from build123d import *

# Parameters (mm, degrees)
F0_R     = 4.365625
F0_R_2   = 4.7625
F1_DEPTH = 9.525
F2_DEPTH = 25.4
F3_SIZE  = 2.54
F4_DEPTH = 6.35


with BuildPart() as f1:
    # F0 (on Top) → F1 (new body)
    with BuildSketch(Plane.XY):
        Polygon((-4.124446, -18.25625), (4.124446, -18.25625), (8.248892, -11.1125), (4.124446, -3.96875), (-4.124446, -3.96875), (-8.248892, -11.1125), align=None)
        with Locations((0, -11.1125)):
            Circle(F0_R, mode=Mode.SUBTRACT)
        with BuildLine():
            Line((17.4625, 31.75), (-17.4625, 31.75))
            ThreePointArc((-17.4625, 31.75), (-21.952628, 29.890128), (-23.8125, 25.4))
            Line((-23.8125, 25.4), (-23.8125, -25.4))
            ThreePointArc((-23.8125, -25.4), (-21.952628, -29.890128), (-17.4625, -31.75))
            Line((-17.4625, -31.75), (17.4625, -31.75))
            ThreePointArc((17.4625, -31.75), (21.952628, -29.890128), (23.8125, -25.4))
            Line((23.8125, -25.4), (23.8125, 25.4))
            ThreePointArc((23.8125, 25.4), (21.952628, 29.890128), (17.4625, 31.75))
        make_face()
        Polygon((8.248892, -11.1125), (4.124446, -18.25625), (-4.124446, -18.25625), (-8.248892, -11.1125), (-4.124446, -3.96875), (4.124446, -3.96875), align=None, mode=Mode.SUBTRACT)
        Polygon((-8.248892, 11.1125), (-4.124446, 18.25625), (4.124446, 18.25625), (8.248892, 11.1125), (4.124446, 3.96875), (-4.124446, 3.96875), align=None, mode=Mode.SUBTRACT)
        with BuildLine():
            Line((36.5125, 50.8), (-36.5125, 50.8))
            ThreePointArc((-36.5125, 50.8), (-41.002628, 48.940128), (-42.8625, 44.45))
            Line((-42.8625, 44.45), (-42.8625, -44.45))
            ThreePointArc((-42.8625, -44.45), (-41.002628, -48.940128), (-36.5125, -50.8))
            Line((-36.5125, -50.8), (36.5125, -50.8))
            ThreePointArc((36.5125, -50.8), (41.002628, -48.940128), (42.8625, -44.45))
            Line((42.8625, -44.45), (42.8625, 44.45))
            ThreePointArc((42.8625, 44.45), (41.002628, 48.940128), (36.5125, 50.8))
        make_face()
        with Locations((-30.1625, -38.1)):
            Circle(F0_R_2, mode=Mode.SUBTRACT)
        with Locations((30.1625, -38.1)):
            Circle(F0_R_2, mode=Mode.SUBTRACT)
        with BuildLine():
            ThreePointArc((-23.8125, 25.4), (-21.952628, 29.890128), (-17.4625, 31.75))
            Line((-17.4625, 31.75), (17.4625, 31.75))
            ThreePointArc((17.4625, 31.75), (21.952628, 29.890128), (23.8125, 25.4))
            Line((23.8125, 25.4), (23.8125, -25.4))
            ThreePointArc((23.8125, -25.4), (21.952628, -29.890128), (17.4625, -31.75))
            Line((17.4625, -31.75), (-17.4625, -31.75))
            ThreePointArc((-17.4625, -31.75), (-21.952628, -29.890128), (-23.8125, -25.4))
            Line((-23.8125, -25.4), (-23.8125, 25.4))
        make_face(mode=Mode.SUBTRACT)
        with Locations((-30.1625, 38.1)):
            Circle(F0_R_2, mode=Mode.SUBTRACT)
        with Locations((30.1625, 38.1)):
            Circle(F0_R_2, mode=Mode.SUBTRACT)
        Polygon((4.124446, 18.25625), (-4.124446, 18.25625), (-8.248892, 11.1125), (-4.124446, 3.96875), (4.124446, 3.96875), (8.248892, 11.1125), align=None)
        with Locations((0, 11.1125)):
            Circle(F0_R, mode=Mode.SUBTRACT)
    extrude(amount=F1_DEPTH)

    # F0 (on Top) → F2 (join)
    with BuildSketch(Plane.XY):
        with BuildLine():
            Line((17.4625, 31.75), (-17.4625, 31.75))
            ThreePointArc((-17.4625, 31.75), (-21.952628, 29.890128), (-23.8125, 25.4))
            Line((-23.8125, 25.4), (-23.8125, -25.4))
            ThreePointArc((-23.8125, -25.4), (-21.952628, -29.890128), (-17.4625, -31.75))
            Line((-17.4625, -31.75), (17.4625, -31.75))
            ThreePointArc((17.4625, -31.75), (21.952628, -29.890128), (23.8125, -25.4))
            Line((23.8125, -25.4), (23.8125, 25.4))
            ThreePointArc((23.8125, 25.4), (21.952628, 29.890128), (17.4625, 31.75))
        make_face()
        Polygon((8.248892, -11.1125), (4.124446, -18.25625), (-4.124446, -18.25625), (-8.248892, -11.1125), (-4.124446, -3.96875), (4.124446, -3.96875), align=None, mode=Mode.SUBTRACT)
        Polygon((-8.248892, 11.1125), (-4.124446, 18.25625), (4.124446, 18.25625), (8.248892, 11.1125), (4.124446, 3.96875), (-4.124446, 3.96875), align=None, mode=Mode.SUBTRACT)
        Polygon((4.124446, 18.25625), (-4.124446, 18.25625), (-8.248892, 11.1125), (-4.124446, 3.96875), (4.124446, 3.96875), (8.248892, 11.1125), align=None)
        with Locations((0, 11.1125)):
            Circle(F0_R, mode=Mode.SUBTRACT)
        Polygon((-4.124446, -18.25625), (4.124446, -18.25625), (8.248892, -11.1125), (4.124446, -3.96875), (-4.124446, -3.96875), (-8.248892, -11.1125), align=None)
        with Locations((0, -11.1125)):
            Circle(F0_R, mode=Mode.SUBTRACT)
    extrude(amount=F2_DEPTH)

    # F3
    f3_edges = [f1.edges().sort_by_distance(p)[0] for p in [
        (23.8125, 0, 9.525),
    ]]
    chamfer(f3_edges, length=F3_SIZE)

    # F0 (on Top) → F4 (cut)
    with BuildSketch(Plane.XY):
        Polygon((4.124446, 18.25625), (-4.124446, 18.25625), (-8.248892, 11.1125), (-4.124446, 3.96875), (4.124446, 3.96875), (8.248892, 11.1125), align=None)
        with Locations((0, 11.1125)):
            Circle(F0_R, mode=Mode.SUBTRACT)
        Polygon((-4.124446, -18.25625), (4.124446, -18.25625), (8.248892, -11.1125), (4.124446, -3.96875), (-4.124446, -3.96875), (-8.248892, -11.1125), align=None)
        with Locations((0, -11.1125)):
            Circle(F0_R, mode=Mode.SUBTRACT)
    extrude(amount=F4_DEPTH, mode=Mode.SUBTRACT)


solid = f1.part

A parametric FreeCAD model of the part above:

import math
import FreeCAD as App
import Part
import Sketcher
from FreeCAD import Vector
Q = App.Units.Quantity


def edges_at(feature, points):
    """Names of the edges that pass closest to the given points."""
    edges = feature.Shape.Edges
    near = lambda p: min(range(len(edges)), key=lambda i: edges[i].distToShape(Part.Vertex(*p))[0])
    return sorted({f"Edge{near(p) + 1}" for p in points})

doc = App.newDocument("Part")
body = doc.addObject("PartDesign::Body", "Body")
body.AllowCompound = True

sketch1 = body.newObject("Sketcher::SketchObject", "Sketch")
sketch1.AttachmentSupport = (doc.getObject("XY_Plane"), [""])
sketch1.MapMode = "FlatFace"
sketch1.addGeometry(Part.LineSegment(Vector(36.5125, 50.8, 0), Vector(-36.5125, 50.8, 0)), False)
sketch1.addGeometry(Part.ArcOfCircle(Part.Circle(Vector(-36.5125, 44.45, 0), Vector(0, 0, 1), 6.35), math.radians(90.000002), math.radians(179.999998)), False)
sketch1.addGeometry(Part.LineSegment(Vector(-42.8625, 44.45, 0), Vector(-42.8625, -44.45, 0)), False)
sketch1.addGeometry(Part.ArcOfCircle(Part.Circle(Vector(-36.5125, -44.45, 0), Vector(0, 0, 1), 6.35), math.radians(-179.999998), math.radians(-90.000002)), False)
sketch1.addGeometry(Part.LineSegment(Vector(-36.5125, -50.8, 0), Vector(36.5125, -50.8, 0)), False)
sketch1.addGeometry(Part.ArcOfCircle(Part.Circle(Vector(36.5125, -44.45, 0), Vector(0, 0, 1), 6.35), math.radians(-89.999998), math.radians(-0.000002)), False)
sketch1.addGeometry(Part.LineSegment(Vector(42.8625, -44.45, 0), Vector(42.8625, 44.45, 0)), False)
sketch1.addGeometry(Part.ArcOfCircle(Part.Circle(Vector(36.5125, 44.45, 0), Vector(0, 0, 1), 6.35), math.radians(0.000002), math.radians(89.999998)), False)
sketch1.addGeometry(Part.Circle(Vector(-30.1625, -38.1, 0), Vector(0, 0, 1), 4.7625), False)
sketch1.addGeometry(Part.Circle(Vector(30.1625, -38.1, 0), Vector(0, 0, 1), 4.7625), False)
sketch1.addGeometry(Part.Circle(Vector(-30.1625, 38.1, 0), Vector(0, 0, 1), 4.7625), False)
sketch1.addGeometry(Part.LineSegment(Vector(-23.8125, -25.4, 0), Vector(-23.8125, 25.4, 0)), False)
sketch1.addGeometry(Part.ArcOfCircle(Part.Circle(Vector(-17.4625, 25.4, 0), Vector(0, 0, 1), 6.35), math.radians(90.000002), math.radians(179.999998)), False)
sketch1.addGeometry(Part.LineSegment(Vector(-17.4625, 31.75, 0), Vector(17.4625, 31.75, 0)), False)
sketch1.addGeometry(Part.ArcOfCircle(Part.Circle(Vector(17.4625, 25.4, 0), Vector(0, 0, 1), 6.35), math.radians(0.000002), math.radians(89.999998)), False)
sketch1.addGeometry(Part.LineSegment(Vector(23.8125, 25.4, 0), Vector(23.8125, -25.4, 0)), False)
sketch1.addGeometry(Part.ArcOfCircle(Part.Circle(Vector(17.4625, -25.4, 0), Vector(0, 0, 1), 6.35), math.radians(-89.999998), math.radians(-0.000002)), False)
sketch1.addGeometry(Part.LineSegment(Vector(17.4625, -31.75, 0), Vector(-17.4625, -31.75, 0)), False)
sketch1.addGeometry(Part.ArcOfCircle(Part.Circle(Vector(-17.4625, -25.4, 0), Vector(0, 0, 1), 6.35), math.radians(-179.999998), math.radians(-90.000002)), False)
sketch1.addGeometry(Part.Circle(Vector(30.1625, 38.1, 0), Vector(0, 0, 1), 4.7625), False)
sketch1.addGeometry(Part.LineSegment(Vector(4.124446, 18.25625, 0), Vector(-4.124446, 18.25625, 0)), False)
sketch1.addGeometry(Part.LineSegment(Vector(-4.124446, 18.25625, 0), Vector(-8.248892, 11.1125, 0)), False)
sketch1.addGeometry(Part.LineSegment(Vector(-8.248892, 11.1125, 0), Vector(-4.124446, 3.96875, 0)), False)
sketch1.addGeometry(Part.LineSegment(Vector(-4.124446, 3.96875, 0), Vector(4.124446, 3.96875, 0)), False)
sketch1.addGeometry(Part.LineSegment(Vector(4.124446, 3.96875, 0), Vector(8.248892, 11.1125, 0)), False)
sketch1.addGeometry(Part.LineSegment(Vector(8.248892, 11.1125, 0), Vector(4.124446, 18.25625, 0)), False)
sketch1.addGeometry(Part.Circle(Vector(0, 11.1125, 0), Vector(0, 0, 1), 4.365625), False)
sketch1.addConstraint(Sketcher.Constraint("Tangent", 0, 2, 1, 1))
sketch1.addConstraint(Sketcher.Constraint("Tangent", 1, 2, 2, 1))
sketch1.addConstraint(Sketcher.Constraint("Tangent", 2, 2, 3, 1))
sketch1.addConstraint(Sketcher.Constraint("Tangent", 3, 2, 4, 1))
sketch1.addConstraint(Sketcher.Constraint("Tangent", 4, 2, 5, 1))
sketch1.addConstraint(Sketcher.Constraint("Tangent", 5, 2, 6, 1))
sketch1.addConstraint(Sketcher.Constraint("Tangent", 6, 2, 7, 1))
sketch1.addConstraint(Sketcher.Constraint("Tangent", 7, 2, 0, 1))
sketch1.addConstraint(Sketcher.Constraint("Tangent", 11, 2, 12, 2))
sketch1.addConstraint(Sketcher.Constraint("Tangent", 12, 1, 13, 1))
sketch1.addConstraint(Sketcher.Constraint("Tangent", 13, 2, 14, 2))
sketch1.addConstraint(Sketcher.Constraint("Tangent", 14, 1, 15, 1))
sketch1.addConstraint(Sketcher.Constraint("Tangent", 15, 2, 16, 2))
sketch1.addConstraint(Sketcher.Constraint("Tangent", 16, 1, 17, 1))
sketch1.addConstraint(Sketcher.Constraint("Tangent", 17, 2, 18, 2))
sketch1.addConstraint(Sketcher.Constraint("Tangent", 18, 1, 11, 1))
sketch1.addConstraint(Sketcher.Constraint("Coincident", 20, 2, 21, 1))
sketch1.addConstraint(Sketcher.Constraint("Coincident", 21, 2, 22, 1))
sketch1.addConstraint(Sketcher.Constraint("Coincident", 22, 2, 23, 1))
sketch1.addConstraint(Sketcher.Constraint("Coincident", 23, 2, 24, 1))
sketch1.addConstraint(Sketcher.Constraint("Coincident", 24, 2, 25, 1))
sketch1.addConstraint(Sketcher.Constraint("Coincident", 25, 2, 20, 1))
sketch1.addConstraint(Sketcher.Constraint("Horizontal", 0))
sketch1.addConstraint(Sketcher.Constraint("Vertical", 2))
sketch1.addConstraint(Sketcher.Constraint("Horizontal", 4))
sketch1.addConstraint(Sketcher.Constraint("Vertical", 6))
sketch1.addConstraint(Sketcher.Constraint("Vertical", 11))
sketch1.addConstraint(Sketcher.Constraint("Horizontal", 13))
sketch1.addConstraint(Sketcher.Constraint("Vertical", 15))
sketch1.addConstraint(Sketcher.Constraint("Horizontal", 17))
sketch1.addConstraint(Sketcher.Constraint("Horizontal", 20))
sketch1.addConstraint(Sketcher.Constraint("Horizontal", 23))
sketch1.addConstraint(Sketcher.Constraint("Equal", 1, 3))
sketch1.addConstraint(Sketcher.Constraint("Equal", 3, 5))
sketch1.addConstraint(Sketcher.Constraint("Equal", 5, 7))
sketch1.addConstraint(Sketcher.Constraint("Equal", 8, 9))
sketch1.addConstraint(Sketcher.Constraint("Equal", 9, 10))
sketch1.addConstraint(Sketcher.Constraint("Equal", 7, 12))
sketch1.addConstraint(Sketcher.Constraint("Equal", 12, 14))
sketch1.addConstraint(Sketcher.Constraint("Equal", 14, 16))
sketch1.addConstraint(Sketcher.Constraint("Equal", 16, 18))
sketch1.addConstraint(Sketcher.Constraint("Equal", 10, 19))
sketch1.addConstraint(Sketcher.Constraint("Symmetric", 1, 3, 5, 3, -1, 1))
sketch1.addConstraint(Sketcher.Constraint("Symmetric", 9, 3, 10, 3, -1, 1))
sketch1.addConstraint(Sketcher.Constraint("Symmetric", 12, 3, 16, 3, -1, 1))
sketch1.addConstraint(Sketcher.Constraint("Symmetric", 8, 3, 19, 3, -1, 1))
sketch1.addConstraint(Sketcher.Constraint("Symmetric", 8, 3, 9, 3, -2))
sketch1.addConstraint(Sketcher.Constraint("Symmetric", 21, 2, 24, 2, -2))
sketch1.addConstraint(Sketcher.Constraint("PointOnObject", 26, 3, -2))
sketch1.addConstraint(Sketcher.Constraint("Parallel", 21, 24))
sketch1.addConstraint(Sketcher.Constraint("Parallel", 22, 25))
sketch1.addConstraint(Sketcher.Constraint("Horizontal", 26, 3, 21, 2))
sketch1.addConstraint(Sketcher.Constraint("Vertical", 20, 2, 22, 2))
sketch1.addConstraint(Sketcher.Constraint("Vertical", 23, 2, 25, 2))
sketch1.addConstraint(Sketcher.Constraint("DistanceY", 11, 1, 11, 2, Q("2 in")))
sketch1.addConstraint(Sketcher.Constraint("Radius", 1, Q("0.25 in")))
sketch1.addConstraint(Sketcher.Constraint("Diameter", 8, Q("0.375 in")))
sketch1.addConstraint(Sketcher.Constraint("Diameter", 26, Q("0.34375 in")))
sketch1.addConstraint(Sketcher.Constraint("DistanceY", 2, 2, 2, 1, Q("3.5 in")))
sketch1.addConstraint(Sketcher.Constraint("Angle", 21, Q("-120 deg")))
sketch1.addConstraint(Sketcher.Constraint("DistanceY", 8, 3, 10, 3, Q("3 in")))
sketch1.addConstraint(Sketcher.Constraint("DistanceX", 1, 2, 12, 3, Q("1 in")))
sketch1.addConstraint(Sketcher.Constraint("DistanceX", 10, 3, 12, 3, Q("0.5 in")))
sketch1.addConstraint(Sketcher.Constraint("DistanceX", 0, 2, 0, 1, Q("2.875 in")))
sketch1.addConstraint(Sketcher.Constraint("DistanceY", -1, 1, 26, 3, Q("0.4375 in")))
sketch1.addConstraint(Sketcher.Constraint("DistanceY", -1, 1, 20, 2, Q("0.71875 in")))
sketch1.addConstraint(Sketcher.Constraint("DistanceX", 20, 2, 20, 1, Q("8.248892 mm")))
pad1 = body.newObject("PartDesign::Pad", "Pad")
pad1.Profile = sketch1
pad1.Length = Q("0.375 in")

sketch2 = body.newObject("Sketcher::SketchObject", "Sketch001")
sketch2.AttachmentSupport = (doc.getObject("XY_Plane"), [""])
sketch2.MapMode = "FlatFace"
sketch2.addGeometry(Part.LineSegment(Vector(17.4625, 31.75, 0), Vector(-17.4625, 31.75, 0)), False)
sketch2.addGeometry(Part.ArcOfCircle(Part.Circle(Vector(-17.4625, 25.4, 0), Vector(0, 0, 1), 6.35), math.radians(90.000002), math.radians(179.999998)), False)
sketch2.addGeometry(Part.LineSegment(Vector(-23.8125, 25.4, 0), Vector(-23.8125, -25.4, 0)), False)
sketch2.addGeometry(Part.ArcOfCircle(Part.Circle(Vector(-17.4625, -25.4, 0), Vector(0, 0, 1), 6.35), math.radians(-179.999998), math.radians(-90.000002)), False)
sketch2.addGeometry(Part.LineSegment(Vector(-17.4625, -31.75, 0), Vector(17.4625, -31.75, 0)), False)
sketch2.addGeometry(Part.ArcOfCircle(Part.Circle(Vector(17.4625, -25.4, 0), Vector(0, 0, 1), 6.35), math.radians(-89.999998), math.radians(-0.000002)), False)
sketch2.addGeometry(Part.LineSegment(Vector(23.8125, -25.4, 0), Vector(23.8125, 25.4, 0)), False)
sketch2.addGeometry(Part.ArcOfCircle(Part.Circle(Vector(17.4625, 25.4, 0), Vector(0, 0, 1), 6.35), math.radians(0.000002), math.radians(89.999998)), False)
sketch2.addGeometry(Part.Circle(Vector(0, -11.1125, 0), Vector(0, 0, 1), 4.365625), False)
sketch2.addGeometry(Part.Circle(Vector(0, 11.1125, 0), Vector(0, 0, 1), 4.365625), False)
sketch2.addConstraint(Sketcher.Constraint("Tangent", 0, 2, 1, 1))
sketch2.addConstraint(Sketcher.Constraint("Tangent", 1, 2, 2, 1))
sketch2.addConstraint(Sketcher.Constraint("Tangent", 2, 2, 3, 1))
sketch2.addConstraint(Sketcher.Constraint("Tangent", 3, 2, 4, 1))
sketch2.addConstraint(Sketcher.Constraint("Tangent", 4, 2, 5, 1))
sketch2.addConstraint(Sketcher.Constraint("Tangent", 5, 2, 6, 1))
sketch2.addConstraint(Sketcher.Constraint("Tangent", 6, 2, 7, 1))
sketch2.addConstraint(Sketcher.Constraint("Tangent", 7, 2, 0, 1))
sketch2.addConstraint(Sketcher.Constraint("Horizontal", 0))
sketch2.addConstraint(Sketcher.Constraint("Vertical", 2))
sketch2.addConstraint(Sketcher.Constraint("Horizontal", 4))
sketch2.addConstraint(Sketcher.Constraint("Vertical", 6))
sketch2.addConstraint(Sketcher.Constraint("Equal", 1, 3))
sketch2.addConstraint(Sketcher.Constraint("Equal", 3, 5))
sketch2.addConstraint(Sketcher.Constraint("Equal", 5, 7))
sketch2.addConstraint(Sketcher.Constraint("Equal", 8, 9))
sketch2.addConstraint(Sketcher.Constraint("Symmetric", 1, 3, 5, 3, -1, 1))
sketch2.addConstraint(Sketcher.Constraint("Symmetric", 8, 3, 9, 3, -1, 1))
sketch2.addConstraint(Sketcher.Constraint("PointOnObject", 8, 3, -2))
sketch2.addConstraint(Sketcher.Constraint("DistanceY", 2, 2, 2, 1, Q("2 in")))
sketch2.addConstraint(Sketcher.Constraint("Radius", 1, Q("0.25 in")))
sketch2.addConstraint(Sketcher.Constraint("Diameter", 8, Q("0.34375 in")))
sketch2.addConstraint(Sketcher.Constraint("DistanceX", 0, 2, 0, 1, Q("1.375 in")))
sketch2.addConstraint(Sketcher.Constraint("DistanceY", 8, 3, -1, 1, Q("0.4375 in")))
pad2 = body.newObject("PartDesign::Pad", "Pad001")
pad2.Profile = sketch2
pad2.Length = Q("1 in")
doc.recompute()

chamfer = body.newObject("PartDesign::Chamfer", "Chamfer")
chamfer.Base = (pad2, edges_at(pad2, [(23.812, 0, 9.525)]))
chamfer.Size = Q("0.1 in")

sketch3 = body.newObject("Sketcher::SketchObject", "Sketch002")
sketch3.AttachmentSupport = (doc.getObject("XY_Plane"), [""])
sketch3.MapMode = "FlatFace"
sketch3.addGeometry(Part.LineSegment(Vector(4.124446, 18.25625, 0), Vector(-4.124446, 18.25625, 0)), False)
sketch3.addGeometry(Part.LineSegment(Vector(-4.124446, 18.25625, 0), Vector(-8.248892, 11.1125, 0)), False)
sketch3.addGeometry(Part.LineSegment(Vector(-8.248892, 11.1125, 0), Vector(-4.124446, 3.96875, 0)), False)
sketch3.addGeometry(Part.LineSegment(Vector(-4.124446, 3.96875, 0), Vector(4.124446, 3.96875, 0)), False)
sketch3.addGeometry(Part.LineSegment(Vector(4.124446, 3.96875, 0), Vector(8.248892, 11.1125, 0)), False)
sketch3.addGeometry(Part.LineSegment(Vector(8.248892, 11.1125, 0), Vector(4.124446, 18.25625, 0)), False)
sketch3.addGeometry(Part.Circle(Vector(0, 11.1125, 0), Vector(0, 0, 1), 4.365625), False)
sketch3.addGeometry(Part.LineSegment(Vector(-4.124446, -18.25625, 0), Vector(4.124446, -18.25625, 0)), False)
sketch3.addGeometry(Part.LineSegment(Vector(4.124446, -18.25625, 0), Vector(8.248892, -11.1125, 0)), False)
sketch3.addGeometry(Part.LineSegment(Vector(8.248892, -11.1125, 0), Vector(4.124446, -3.96875, 0)), False)
sketch3.addGeometry(Part.LineSegment(Vector(4.124446, -3.96875, 0), Vector(-4.124446, -3.96875, 0)), False)
sketch3.addGeometry(Part.LineSegment(Vector(-4.124446, -3.96875, 0), Vector(-8.248892, -11.1125, 0)), False)
sketch3.addGeometry(Part.LineSegment(Vector(-8.248892, -11.1125, 0), Vector(-4.124446, -18.25625, 0)), False)
sketch3.addGeometry(Part.Circle(Vector(0, -11.1125, 0), Vector(0, 0, 1), 4.365625), False)
sketch3.addConstraint(Sketcher.Constraint("Coincident", 0, 2, 1, 1))
sketch3.addConstraint(Sketcher.Constraint("Coincident", 1, 2, 2, 1))
sketch3.addConstraint(Sketcher.Constraint("Coincident", 2, 2, 3, 1))
sketch3.addConstraint(Sketcher.Constraint("Coincident", 3, 2, 4, 1))
sketch3.addConstraint(Sketcher.Constraint("Coincident", 4, 2, 5, 1))
sketch3.addConstraint(Sketcher.Constraint("Coincident", 5, 2, 0, 1))
sketch3.addConstraint(Sketcher.Constraint("Coincident", 7, 2, 8, 1))
sketch3.addConstraint(Sketcher.Constraint("Coincident", 8, 2, 9, 1))
sketch3.addConstraint(Sketcher.Constraint("Coincident", 9, 2, 10, 1))
sketch3.addConstraint(Sketcher.Constraint("Coincident", 10, 2, 11, 1))
sketch3.addConstraint(Sketcher.Constraint("Coincident", 11, 2, 12, 1))
sketch3.addConstraint(Sketcher.Constraint("Coincident", 12, 2, 7, 1))
sketch3.addConstraint(Sketcher.Constraint("Horizontal", 0))
sketch3.addConstraint(Sketcher.Constraint("Horizontal", 3))
sketch3.addConstraint(Sketcher.Constraint("Horizontal", 7))
sketch3.addConstraint(Sketcher.Constraint("Horizontal", 10))
sketch3.addConstraint(Sketcher.Constraint("Equal", 6, 13))
sketch3.addConstraint(Sketcher.Constraint("Symmetric", 6, 3, 13, 3, -1, 1))
sketch3.addConstraint(Sketcher.Constraint("Symmetric", 0, 2, 7, 2, -1, 1))
sketch3.addConstraint(Sketcher.Constraint("Symmetric", 1, 2, 8, 2, -1, 1))
sketch3.addConstraint(Sketcher.Constraint("Symmetric", 2, 2, 9, 2, -1, 1))
sketch3.addConstraint(Sketcher.Constraint("Symmetric", 4, 2, 11, 2, -1, 1))
sketch3.addConstraint(Sketcher.Constraint("Symmetric", 1, 2, 4, 2, -2))
sketch3.addConstraint(Sketcher.Constraint("PointOnObject", 6, 3, -2))
sketch3.addConstraint(Sketcher.Constraint("Parallel", 1, 4))
sketch3.addConstraint(Sketcher.Constraint("Parallel", 2, 5))
sketch3.addConstraint(Sketcher.Constraint("Parallel", 8, 11))
sketch3.addConstraint(Sketcher.Constraint("Parallel", 9, 12))
sketch3.addConstraint(Sketcher.Constraint("Horizontal", 6, 3, 1, 2))
sketch3.addConstraint(Sketcher.Constraint("Vertical", 0, 2, 2, 2))
sketch3.addConstraint(Sketcher.Constraint("Vertical", 3, 2, 5, 2))
sketch3.addConstraint(Sketcher.Constraint("Diameter", 6, Q("0.34375 in")))
sketch3.addConstraint(Sketcher.Constraint("Angle", 1, Q("-120 deg")))
sketch3.addConstraint(Sketcher.Constraint("DistanceY", -1, 1, 6, 3, Q("0.4375 in")))
sketch3.addConstraint(Sketcher.Constraint("DistanceY", -1, 1, 0, 2, Q("0.71875 in")))
sketch3.addConstraint(Sketcher.Constraint("DistanceX", 0, 2, 0, 1, Q("8.248892 mm")))
pocket1 = body.newObject("PartDesign::Pocket", "Pocket")
pocket1.Profile = sketch3
pocket1.Length = Q("0.25 in")
pocket1.Reversed = True

doc.recompute()
